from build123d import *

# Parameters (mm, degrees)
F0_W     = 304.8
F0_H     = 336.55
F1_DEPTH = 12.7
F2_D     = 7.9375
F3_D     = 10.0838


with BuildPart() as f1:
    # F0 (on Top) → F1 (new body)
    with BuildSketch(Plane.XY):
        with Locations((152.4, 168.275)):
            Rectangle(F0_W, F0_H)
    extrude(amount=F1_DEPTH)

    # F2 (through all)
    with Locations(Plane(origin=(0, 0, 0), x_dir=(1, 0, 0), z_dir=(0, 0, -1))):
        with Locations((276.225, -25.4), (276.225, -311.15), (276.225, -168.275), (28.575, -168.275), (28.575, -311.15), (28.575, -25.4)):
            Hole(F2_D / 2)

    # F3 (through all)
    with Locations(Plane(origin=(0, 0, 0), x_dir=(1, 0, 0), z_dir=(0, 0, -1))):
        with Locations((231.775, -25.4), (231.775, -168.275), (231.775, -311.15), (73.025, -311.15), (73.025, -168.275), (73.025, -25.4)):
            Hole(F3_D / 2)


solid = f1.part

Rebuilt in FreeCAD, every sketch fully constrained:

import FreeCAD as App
import Part
import Sketcher

V = App.Vector
Q = App.Units.Quantity


def add_polygon(sketch, points):
    """Adds a closed chain of lines whose ends are joined by coincident constraints."""
    first, n = sketch.GeometryCount, len(points)
    for a, b in zip(points, points[1:] + points[:1]):
        sketch.addGeometry(Part.LineSegment(App.Vector(*a, 0), App.Vector(*b, 0)), False)
    for i in range(n):
        sketch.addConstraint(Sketcher.Constraint("Coincident", first + i, 2, first + (i + 1) % n, 1))

doc = App.newDocument("Part")
body = doc.addObject("PartDesign::Body", "Body")

# Sketch on XY plane
sketch1 = body.newObject("Sketcher::SketchObject", "Sketch")
sketch1.AttachmentSupport = (doc.getObject("XY_Plane"), [""])
sketch1.MapMode = "FlatFace"
add_polygon(sketch1, [(0, 337), (0, 0), (305, 0), (305, 337)])  # lines 0-3
sketch1.addConstraint([
    Sketcher.Constraint("Vertical", 0),
    Sketcher.Constraint("Horizontal", 1),
    Sketcher.Constraint("Vertical", 2),
    Sketcher.Constraint("Horizontal", 3),
    Sketcher.Constraint("Coincident", 0, 2, -1, 1),
    Sketcher.Constraint("DistanceX", 1, 1, 1, 2, Q("12 in")),
    Sketcher.Constraint("DistanceY", 0, 2, 0, 1, Q("13.25 in")),
])
pad1 = body.newObject("PartDesign::Pad", "Pad")
pad1.Profile = sketch1
pad1.Length = Q("0.5 in")

# Sketch on XY plane
sketch2 = body.newObject("Sketcher::SketchObject", "Sketch001")
sketch2.AttachmentSupport = (doc.getObject("XY_Plane"), [""])
sketch2.MapMode = "FlatFace"
sketch2.addGeometry([
    Part.Circle(V(276.2, 25.4, 0), V(0, 0, 1), 4),  # 0
    Part.Circle(V(276.2, 311.1, 0), V(0, 0, 1), 4),  # 1
    Part.Circle(V(276.2, 168.3, 0), V(0, 0, 1), 4),  # 2
    Part.Circle(V(28.6, 168.3, 0), V(0, 0, 1), 4),  # 3
    Part.Circle(V(28.6, 311.1, 0), V(0, 0, 1), 4),  # 4
    Part.Circle(V(28.6, 25.4, 0), V(0, 0, 1), 4),  # 5
], False)
sketch2.addConstraint([
    Sketcher.Constraint("Equal", 0, 1),
    Sketcher.Constraint("Equal", 1, 2),
    Sketcher.Constraint("Equal", 2, 3),
    Sketcher.Constraint("Equal", 3, 4),
    Sketcher.Constraint("Equal", 4, 5),
    Sketcher.Constraint("Horizontal", 2, 3, 3, 3),
    Sketcher.Constraint("Horizontal", 1, 3, 4, 3),
    Sketcher.Constraint("Horizontal", 0, 3, 5, 3),
    Sketcher.Constraint("Vertical", 0, 3, 1, 3),
    Sketcher.Constraint("Vertical", 1, 3, 2, 3),
    Sketcher.Constraint("Vertical", 3, 3, 4, 3),
    Sketcher.Constraint("Vertical", 4, 3, 5, 3),
    Sketcher.Constraint("Diameter", 0, Q("0.3125 in")),
    Sketcher.Constraint("DistanceY", -1, 1, 0, 3, Q("1 in")),
    Sketcher.Constraint("DistanceY", -1, 1, 1, 3, Q("12.25 in")),
    Sketcher.Constraint("DistanceX", 3, 3, 2, 3, Q("9.75 in")),
    Sketcher.Constraint("DistanceX", -1, 1, 0, 3, Q("10.875 in")),
    Sketcher.Constraint("DistanceY", -1, 1, 2, 3, Q("6.625 in")),
])
doc.recompute()
hole = body.newObject("PartDesign::Hole", "Hole")
hole.Profile = sketch2
hole.ThreadType = "None"
hole.Diameter = Q("0.3125 in")
hole.DepthType = "ThroughAll"
hole.Reversed = True

# Sketch on XY plane
sketch3 = body.newObject("Sketcher::SketchObject", "Sketch002")
sketch3.AttachmentSupport = (doc.getObject("XY_Plane"), [""])
sketch3.MapMode = "FlatFace"
sketch3.addGeometry([
    Part.Circle(V(232, 25, 0), V(0, 0, 1), 5),  # 0
    Part.Circle(V(232, 168, 0), V(0, 0, 1), 5),  # 1
    Part.Circle(V(232, 311, 0), V(0, 0, 1), 5),  # 2
    Part.Circle(V(73, 311, 0), V(0, 0, 1), 5),  # 3
    Part.Circle(V(73, 168, 0), V(0, 0, 1), 5),  # 4
    Part.Circle(V(73, 25, 0), V(0, 0, 1), 5),  # 5
], False)
sketch3.addConstraint([
    Sketcher.Constraint("Equal", 0, 1),
    Sketcher.Constraint("Equal", 1, 2),
    Sketcher.Constraint("Equal", 2, 3),
    Sketcher.Constraint("Equal", 3, 4),
    Sketcher.Constraint("Equal", 4, 5),
    Sketcher.Constraint("Horizontal", 2, 3, 3, 3),
    Sketcher.Constraint("Horizontal", 1, 3, 4, 3),
    Sketcher.Constraint("Horizontal", 0, 3, 5, 3),
    Sketcher.Constraint("Vertical", 0, 3, 1, 3),
    Sketcher.Constraint("Vertical", 1, 3, 2, 3),
    Sketcher.Constraint("Vertical", 3, 3, 4, 3),
    Sketcher.Constraint("Vertical", 4, 3, 5, 3),
    Sketcher.Constraint("Diameter", 0, Q("0.397 in")),
    Sketcher.Constraint("DistanceY", -1, 1, 0, 3, Q("1 in")),
    Sketcher.Constraint("DistanceY", -1, 1, 2, 3, Q("12.25 in")),
    Sketcher.Constraint("DistanceX", 3, 3, 2, 3, Q("6.25 in")),
    Sketcher.Constraint("DistanceX", -1, 1, 0, 3, Q("9.125 in")),
    Sketcher.Constraint("DistanceY", -1, 1, 1, 3, Q("6.625 in")),
])
doc.recompute()
hole2 = body.newObject("PartDesign::Hole", "Hole001")
hole2.Profile = sketch3
hole2.ThreadType = "None"
hole2.Diameter = Q("0.397 in")
hole2.DepthType = "ThroughAll"
hole2.Reversed = True

doc.recompute()
